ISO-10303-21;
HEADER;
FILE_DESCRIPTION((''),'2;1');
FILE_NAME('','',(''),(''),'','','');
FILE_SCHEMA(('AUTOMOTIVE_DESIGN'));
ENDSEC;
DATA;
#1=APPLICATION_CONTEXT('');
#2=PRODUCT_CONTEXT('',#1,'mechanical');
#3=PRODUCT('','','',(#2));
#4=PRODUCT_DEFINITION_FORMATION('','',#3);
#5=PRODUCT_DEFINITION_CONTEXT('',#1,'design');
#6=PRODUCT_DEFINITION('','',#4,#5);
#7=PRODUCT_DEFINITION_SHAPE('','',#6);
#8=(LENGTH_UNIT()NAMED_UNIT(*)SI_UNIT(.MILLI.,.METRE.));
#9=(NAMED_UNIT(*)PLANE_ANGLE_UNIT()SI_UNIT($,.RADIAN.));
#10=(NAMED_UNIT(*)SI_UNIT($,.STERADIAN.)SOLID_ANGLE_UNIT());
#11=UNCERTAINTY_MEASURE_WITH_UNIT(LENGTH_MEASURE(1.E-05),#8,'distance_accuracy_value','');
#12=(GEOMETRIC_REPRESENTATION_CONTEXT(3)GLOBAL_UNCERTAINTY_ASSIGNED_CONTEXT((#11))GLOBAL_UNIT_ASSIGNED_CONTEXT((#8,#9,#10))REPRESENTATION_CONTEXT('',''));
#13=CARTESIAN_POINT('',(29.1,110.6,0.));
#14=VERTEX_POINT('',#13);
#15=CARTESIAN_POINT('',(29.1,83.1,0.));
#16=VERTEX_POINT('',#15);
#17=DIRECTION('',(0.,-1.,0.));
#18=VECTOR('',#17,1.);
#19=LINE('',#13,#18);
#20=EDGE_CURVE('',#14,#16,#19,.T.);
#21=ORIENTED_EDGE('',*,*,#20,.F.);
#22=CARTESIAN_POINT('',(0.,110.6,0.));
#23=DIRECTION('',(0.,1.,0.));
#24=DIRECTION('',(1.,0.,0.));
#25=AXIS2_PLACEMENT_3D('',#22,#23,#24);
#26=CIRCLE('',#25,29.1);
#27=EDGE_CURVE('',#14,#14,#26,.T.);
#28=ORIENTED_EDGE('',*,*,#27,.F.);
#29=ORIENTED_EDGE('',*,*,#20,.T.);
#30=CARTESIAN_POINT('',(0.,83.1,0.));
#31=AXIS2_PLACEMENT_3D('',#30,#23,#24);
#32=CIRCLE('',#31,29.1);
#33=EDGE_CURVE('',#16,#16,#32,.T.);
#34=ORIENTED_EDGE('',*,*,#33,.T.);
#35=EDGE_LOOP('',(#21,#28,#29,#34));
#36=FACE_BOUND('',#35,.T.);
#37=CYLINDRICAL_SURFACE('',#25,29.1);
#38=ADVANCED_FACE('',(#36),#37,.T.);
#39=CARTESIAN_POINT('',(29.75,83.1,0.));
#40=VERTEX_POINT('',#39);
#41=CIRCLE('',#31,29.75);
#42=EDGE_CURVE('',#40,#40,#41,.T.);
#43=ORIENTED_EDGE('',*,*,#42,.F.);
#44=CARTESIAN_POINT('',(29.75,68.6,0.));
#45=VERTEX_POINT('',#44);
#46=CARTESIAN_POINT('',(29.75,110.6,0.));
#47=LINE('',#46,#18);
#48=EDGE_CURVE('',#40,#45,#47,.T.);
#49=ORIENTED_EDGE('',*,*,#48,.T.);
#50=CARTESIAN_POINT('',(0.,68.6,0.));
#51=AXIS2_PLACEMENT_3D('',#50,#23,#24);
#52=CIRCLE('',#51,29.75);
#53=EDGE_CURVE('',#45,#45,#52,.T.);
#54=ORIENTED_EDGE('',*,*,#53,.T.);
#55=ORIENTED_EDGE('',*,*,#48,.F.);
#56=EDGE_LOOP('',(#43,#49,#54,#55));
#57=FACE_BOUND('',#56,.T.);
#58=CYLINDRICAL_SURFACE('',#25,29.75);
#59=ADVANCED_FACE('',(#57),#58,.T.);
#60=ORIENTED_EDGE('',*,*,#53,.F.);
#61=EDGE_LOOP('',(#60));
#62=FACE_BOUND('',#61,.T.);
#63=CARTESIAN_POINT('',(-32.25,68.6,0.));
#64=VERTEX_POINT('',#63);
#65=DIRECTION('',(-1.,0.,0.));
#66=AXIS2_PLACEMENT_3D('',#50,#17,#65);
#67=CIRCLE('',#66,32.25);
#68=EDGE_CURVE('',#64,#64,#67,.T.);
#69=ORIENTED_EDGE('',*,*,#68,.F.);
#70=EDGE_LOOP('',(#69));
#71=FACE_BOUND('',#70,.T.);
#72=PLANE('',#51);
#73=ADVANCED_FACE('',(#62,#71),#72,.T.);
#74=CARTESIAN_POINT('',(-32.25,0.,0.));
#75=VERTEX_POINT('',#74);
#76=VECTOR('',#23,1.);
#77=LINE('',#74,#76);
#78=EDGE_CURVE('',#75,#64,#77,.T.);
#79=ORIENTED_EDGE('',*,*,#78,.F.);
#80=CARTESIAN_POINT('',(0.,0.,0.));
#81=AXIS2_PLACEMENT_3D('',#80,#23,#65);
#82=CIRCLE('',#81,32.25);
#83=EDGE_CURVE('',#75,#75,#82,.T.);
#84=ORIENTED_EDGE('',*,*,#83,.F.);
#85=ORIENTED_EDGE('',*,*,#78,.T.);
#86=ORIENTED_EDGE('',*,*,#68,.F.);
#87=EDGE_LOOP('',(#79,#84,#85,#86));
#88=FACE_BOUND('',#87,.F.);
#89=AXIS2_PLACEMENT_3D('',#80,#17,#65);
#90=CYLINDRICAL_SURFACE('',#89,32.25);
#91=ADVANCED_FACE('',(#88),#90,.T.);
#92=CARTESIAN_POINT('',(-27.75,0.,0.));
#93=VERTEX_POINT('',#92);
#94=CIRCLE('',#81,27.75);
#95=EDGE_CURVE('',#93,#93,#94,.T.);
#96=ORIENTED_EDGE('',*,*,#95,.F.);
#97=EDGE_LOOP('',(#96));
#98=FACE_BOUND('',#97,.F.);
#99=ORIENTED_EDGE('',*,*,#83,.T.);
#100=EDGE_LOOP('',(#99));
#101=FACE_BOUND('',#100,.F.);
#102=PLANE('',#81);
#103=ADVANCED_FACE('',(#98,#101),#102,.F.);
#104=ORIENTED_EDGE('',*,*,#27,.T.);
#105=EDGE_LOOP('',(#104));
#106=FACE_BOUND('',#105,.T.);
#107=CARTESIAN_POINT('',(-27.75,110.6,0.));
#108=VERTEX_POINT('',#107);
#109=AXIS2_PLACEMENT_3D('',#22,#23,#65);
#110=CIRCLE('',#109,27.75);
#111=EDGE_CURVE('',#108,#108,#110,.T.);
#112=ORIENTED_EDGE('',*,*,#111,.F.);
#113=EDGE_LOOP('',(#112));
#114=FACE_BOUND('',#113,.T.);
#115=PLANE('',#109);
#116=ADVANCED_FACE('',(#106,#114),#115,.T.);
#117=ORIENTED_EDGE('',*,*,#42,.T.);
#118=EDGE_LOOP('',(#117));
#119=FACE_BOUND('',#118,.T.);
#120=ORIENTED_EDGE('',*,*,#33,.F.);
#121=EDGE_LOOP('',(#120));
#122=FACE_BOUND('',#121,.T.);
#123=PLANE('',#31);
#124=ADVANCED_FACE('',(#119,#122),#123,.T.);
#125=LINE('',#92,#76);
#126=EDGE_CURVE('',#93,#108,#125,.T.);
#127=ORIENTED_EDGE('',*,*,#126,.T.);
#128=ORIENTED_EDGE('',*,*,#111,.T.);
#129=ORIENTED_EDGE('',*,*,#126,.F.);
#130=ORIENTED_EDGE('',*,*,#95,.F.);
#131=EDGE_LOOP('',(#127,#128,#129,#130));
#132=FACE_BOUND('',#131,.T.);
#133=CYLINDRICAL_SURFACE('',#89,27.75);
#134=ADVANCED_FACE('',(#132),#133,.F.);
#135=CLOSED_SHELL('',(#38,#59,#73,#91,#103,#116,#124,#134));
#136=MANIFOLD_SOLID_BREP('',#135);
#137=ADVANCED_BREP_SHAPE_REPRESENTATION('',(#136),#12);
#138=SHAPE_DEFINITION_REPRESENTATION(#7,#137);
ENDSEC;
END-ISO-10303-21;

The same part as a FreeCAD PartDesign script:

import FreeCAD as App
import Part
import Sketcher

V = App.Vector
Q = App.Units.Quantity

doc = App.newDocument("Part")
body = doc.addObject("PartDesign::Body", "Body")

# Sketch on XZ plane
sketch1 = body.newObject("Sketcher::SketchObject", "Sketch")
sketch1.AttachmentSupport = (doc.getObject("XZ_Plane"), [""])
sketch1.MapMode = "FlatFace"
sketch1.addGeometry(Part.Circle(V(0, 0, 0), V(0, 0, 1), 32), False)
sketch1.addGeometry(Part.Circle(V(0, 0, 0), V(0, 0, 1), 28), False)
sketch1.addConstraint(Sketcher.Constraint("Coincident", 0, 3, -1, 1))
sketch1.addConstraint(Sketcher.Constraint("Coincident", 1, 3, -1, 1))
sketch1.addConstraint(Sketcher.Constraint("Diameter", 0, Q("64.5 mm")))
sketch1.addConstraint(Sketcher.Constraint("Diameter", 1, Q("55.5 mm")))
pad1 = body.newObject("PartDesign::Pad", "Pad")
pad1.Profile = sketch1
pad1.Length = 110.6
pad1.Reversed = True

# Sketch on XZ plane
sketch2 = body.newObject("Sketcher::SketchObject", "Sketch001")
sketch2.AttachmentSupport = (doc.getObject("XZ_Plane"), [""])
sketch2.MapMode = "FlatFace"
sketch2.AttachmentOffset = App.Placement(V(0, 0, -110.6), App.Rotation())
sketch2.addGeometry(Part.Circle(V(0, 0, 0), V(0, 0, 1), 32), False)
sketch2.addGeometry(Part.Circle(V(0, 0, 0), V(0, 0, 1), 30), False)
sketch2.addConstraint(Sketcher.Constraint("Coincident", 0, 3, -1, 1))
sketch2.addConstraint(Sketcher.Constraint("Coincident", 1, 3, -1, 1))
sketch2.addConstraint(Sketcher.Constraint("Diameter", 1, Q("59.5 mm")))
sketch2.addConstraint(Sketcher.Constraint("Diameter", 0, Q("64.5 mm")))
pocket1 = body.newObject("PartDesign::Pocket", "Pocket")
pocket1.Profile = sketch2
pocket1.Length = 42
pocket1.Reversed = True

# Sketch on XZ plane
sketch3 = body.newObject("Sketcher::SketchObject", "Sketch002")
sketch3.AttachmentSupport = (doc.getObject("XZ_Plane"), [""])
sketch3.MapMode = "FlatFace"
sketch3.AttachmentOffset = App.Placement(V(0, 0, -110.6), App.Rotation())
sketch3.addGeometry(Part.Circle(V(0, 0, 0), V(0, 0, 1), 32), False)
sketch3.addGeometry(Part.Circle(V(0, 0, 0), V(0, 0, 1), 29), False)
sketch3.addConstraint(Sketcher.Constraint("Coincident", 0, 3, -1, 1))
sketch3.addConstraint(Sketcher.Constraint("Coincident", 1, 3, -1, 1))
sketch3.addConstraint(Sketcher.Constraint("Diameter", 1, Q("58.2 mm")))
sketch3.addConstraint(Sketcher.Constraint("Diameter", 0, Q("64.3446 mm")))
pocket2 = body.newObject("PartDesign::Pocket", "Pocket001")
pocket2.Profile = sketch3
pocket2.Length = 27.5
pocket2.Reversed = True

doc.recompute()
